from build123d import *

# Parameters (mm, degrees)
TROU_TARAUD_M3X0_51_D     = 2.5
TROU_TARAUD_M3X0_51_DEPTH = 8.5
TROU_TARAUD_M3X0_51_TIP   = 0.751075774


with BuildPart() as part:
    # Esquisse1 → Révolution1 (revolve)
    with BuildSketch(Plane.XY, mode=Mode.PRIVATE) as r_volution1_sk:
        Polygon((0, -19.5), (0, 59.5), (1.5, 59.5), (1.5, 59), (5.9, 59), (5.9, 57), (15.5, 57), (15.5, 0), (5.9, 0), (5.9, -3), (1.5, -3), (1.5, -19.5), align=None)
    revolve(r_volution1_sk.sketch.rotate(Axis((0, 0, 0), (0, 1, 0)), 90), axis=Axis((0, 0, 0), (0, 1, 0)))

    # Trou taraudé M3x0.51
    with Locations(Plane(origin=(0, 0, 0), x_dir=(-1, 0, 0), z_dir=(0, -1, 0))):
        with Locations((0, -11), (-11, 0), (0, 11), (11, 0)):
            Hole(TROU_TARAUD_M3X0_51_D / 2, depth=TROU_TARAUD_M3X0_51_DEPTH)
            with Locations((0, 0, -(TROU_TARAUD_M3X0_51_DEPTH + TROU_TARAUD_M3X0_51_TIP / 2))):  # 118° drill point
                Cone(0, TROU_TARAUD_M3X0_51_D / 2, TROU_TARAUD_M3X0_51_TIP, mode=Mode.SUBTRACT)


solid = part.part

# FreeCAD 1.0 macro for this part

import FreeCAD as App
import Part
import Sketcher

V = App.Vector
Q = App.Units.Quantity

doc = App.newDocument("Part")
body = doc.addObject("PartDesign::Body", "Body")

sketch1 = body.newObject("Sketcher::SketchObject", "Sketch")
sketch1.AttachmentSupport = (doc.getObject("XY_Plane"), [""])
sketch1.MapMode = "FlatFace"
sketch1.addGeometry([
    Part.LineSegment(V(0, 59.5, 0), V(0, -19.5, 0)),
    Part.LineSegment(V(0, -19.5, 0), V(1.5, -19.5, 0)),
    Part.LineSegment(V(1.5, -19.5, 0), V(1.5, -3, 0)),
    Part.LineSegment(V(1.5, -3, 0), V(5.9, -3, 0)),
    Part.LineSegment(V(5.9, -3, 0), V(5.9, 0, 0)),
    Part.LineSegment(V(5.9, 0, 0), V(15.5, 0, 0)),
    Part.LineSegment(V(15.5, 0, 0), V(15.5, 57, 0)),
    Part.LineSegment(V(15.5, 57, 0), V(5.9, 57, 0)),
    Part.LineSegment(V(5.9, 57, 0), V(5.9, 59, 0)),
    Part.LineSegment(V(5.9, 59, 0), V(1.5, 59, 0)),
    Part.LineSegment(V(1.5, 59, 0), V(1.5, 59.5, 0)),
    Part.LineSegment(V(1.5, 59.5, 0), V(0, 59.5, 0)),
], False)
sketch1.addConstraint([
    Sketcher.Constraint("Coincident", 0, 2, 1, 1),
    Sketcher.Constraint("Coincident", 1, 2, 2, 1),
    Sketcher.Constraint("Coincident", 2, 2, 3, 1),
    Sketcher.Constraint("Coincident", 3, 2, 4, 1),
    Sketcher.Constraint("Coincident", 4, 2, 5, 1),
    Sketcher.Constraint("Coincident", 5, 2, 6, 1),
    Sketcher.Constraint("Coincident", 6, 2, 7, 1),
    Sketcher.Constraint("Coincident", 7, 2, 8, 1),
    Sketcher.Constraint("Coincident", 8, 2, 9, 1),
    Sketcher.Constraint("Coincident", 9, 2, 10, 1),
    Sketcher.Constraint("Coincident", 10, 2, 11, 1),
    Sketcher.Constraint("Coincident", 11, 2, 0, 1),
    Sketcher.Constraint("Vertical", 0),
    Sketcher.Constraint("Horizontal", 1),
    Sketcher.Constraint("Vertical", 2),
    Sketcher.Constraint("Horizontal", 3),
    Sketcher.Constraint("Vertical", 4),
    Sketcher.Constraint("Horizontal", 5),
    Sketcher.Constraint("Vertical", 6),
    Sketcher.Constraint("Horizontal", 7),
    Sketcher.Constraint("Vertical", 8),
    Sketcher.Constraint("Horizontal", 9),
    Sketcher.Constraint("Vertical", 10),
    Sketcher.Constraint("Horizontal", 11),
    Sketcher.Constraint("PointOnObject", 0, 2, -2),
    Sketcher.Constraint("PointOnObject", 4, 2, -1),
    Sketcher.Constraint("Vertical", 4, 2, 7, 2),
    Sketcher.Constraint("Vertical", 2, 2, 9, 2),
    Sketcher.Constraint("DistanceY", 0, 2, 0, 1, Q("79 mm")),
    Sketcher.Constraint("DistanceY", 4, 1, 4, 2, Q("3 mm")),
    Sketcher.Constraint("DistanceY", 6, 1, 6, 2, Q("57 mm")),
    Sketcher.Constraint("DistanceY", 8, 1, 8, 2, Q("2 mm")),
    Sketcher.Constraint("DistanceX", 1, 1, 1, 2, Q("1.5 mm")),
    Sketcher.Constraint("DistanceX", 3, 1, 3, 2, Q("4.4 mm")),
    Sketcher.Constraint("DistanceX", 5, 1, 5, 2, Q("9.6 mm")),
    Sketcher.Constraint("DistanceY", 2, 1, 2, 2, Q("16.5 mm")),
])
revolution = body.newObject("PartDesign::Revolution", "Revolution")
revolution.Profile = sketch1
revolution.ReferenceAxis = (sketch1, ["V_Axis"])
revolution.Angle = 360

sketch2 = body.newObject("Sketcher::SketchObject", "Sketch001")
sketch2.AttachmentSupport = (doc.getObject("XZ_Plane"), [""])
sketch2.MapMode = "FlatFace"
sketch2.addGeometry([
    Part.Circle(V(0, 11, 0), V(0, 0, 1), 1.2),
    Part.Circle(V(11, 0, 0), V(0, 0, 1), 1.2),
    Part.Circle(V(0, -11, 0), V(0, 0, 1), 1.2),
    Part.Circle(V(-11, 0, 0), V(0, 0, 1), 1.2),
], False)
sketch2.addConstraint([
    Sketcher.Constraint("Equal", 0, 1),
    Sketcher.Constraint("Equal", 1, 2),
    Sketcher.Constraint("Equal", 2, 3),
    Sketcher.Constraint("Symmetric", 0, 3, 2, 3, -1, 1),
    Sketcher.Constraint("Symmetric", 1, 3, 3, 3, -1, 1),
    Sketcher.Constraint("PointOnObject", 0, 3, -2),
    Sketcher.Constraint("PointOnObject", 1, 3, -1),
    Sketcher.Constraint("Diameter", 0, Q("2.5 mm")),
    Sketcher.Constraint("DistanceY", -1, 1, 0, 3, Q("11 mm")),
    Sketcher.Constraint("DistanceX", -1, 1, 1, 3, Q("11 mm")),
])
doc.recompute()
hole = body.newObject("PartDesign::Hole", "Hole")
hole.Profile = sketch2
hole.ThreadType = "None"
hole.Diameter = 2.5
hole.DepthType = "Dimension"
hole.Depth = 8.5
hole.DrillPoint = "Angled"
hole.DrillPointAngle = 118

doc.recompute()
